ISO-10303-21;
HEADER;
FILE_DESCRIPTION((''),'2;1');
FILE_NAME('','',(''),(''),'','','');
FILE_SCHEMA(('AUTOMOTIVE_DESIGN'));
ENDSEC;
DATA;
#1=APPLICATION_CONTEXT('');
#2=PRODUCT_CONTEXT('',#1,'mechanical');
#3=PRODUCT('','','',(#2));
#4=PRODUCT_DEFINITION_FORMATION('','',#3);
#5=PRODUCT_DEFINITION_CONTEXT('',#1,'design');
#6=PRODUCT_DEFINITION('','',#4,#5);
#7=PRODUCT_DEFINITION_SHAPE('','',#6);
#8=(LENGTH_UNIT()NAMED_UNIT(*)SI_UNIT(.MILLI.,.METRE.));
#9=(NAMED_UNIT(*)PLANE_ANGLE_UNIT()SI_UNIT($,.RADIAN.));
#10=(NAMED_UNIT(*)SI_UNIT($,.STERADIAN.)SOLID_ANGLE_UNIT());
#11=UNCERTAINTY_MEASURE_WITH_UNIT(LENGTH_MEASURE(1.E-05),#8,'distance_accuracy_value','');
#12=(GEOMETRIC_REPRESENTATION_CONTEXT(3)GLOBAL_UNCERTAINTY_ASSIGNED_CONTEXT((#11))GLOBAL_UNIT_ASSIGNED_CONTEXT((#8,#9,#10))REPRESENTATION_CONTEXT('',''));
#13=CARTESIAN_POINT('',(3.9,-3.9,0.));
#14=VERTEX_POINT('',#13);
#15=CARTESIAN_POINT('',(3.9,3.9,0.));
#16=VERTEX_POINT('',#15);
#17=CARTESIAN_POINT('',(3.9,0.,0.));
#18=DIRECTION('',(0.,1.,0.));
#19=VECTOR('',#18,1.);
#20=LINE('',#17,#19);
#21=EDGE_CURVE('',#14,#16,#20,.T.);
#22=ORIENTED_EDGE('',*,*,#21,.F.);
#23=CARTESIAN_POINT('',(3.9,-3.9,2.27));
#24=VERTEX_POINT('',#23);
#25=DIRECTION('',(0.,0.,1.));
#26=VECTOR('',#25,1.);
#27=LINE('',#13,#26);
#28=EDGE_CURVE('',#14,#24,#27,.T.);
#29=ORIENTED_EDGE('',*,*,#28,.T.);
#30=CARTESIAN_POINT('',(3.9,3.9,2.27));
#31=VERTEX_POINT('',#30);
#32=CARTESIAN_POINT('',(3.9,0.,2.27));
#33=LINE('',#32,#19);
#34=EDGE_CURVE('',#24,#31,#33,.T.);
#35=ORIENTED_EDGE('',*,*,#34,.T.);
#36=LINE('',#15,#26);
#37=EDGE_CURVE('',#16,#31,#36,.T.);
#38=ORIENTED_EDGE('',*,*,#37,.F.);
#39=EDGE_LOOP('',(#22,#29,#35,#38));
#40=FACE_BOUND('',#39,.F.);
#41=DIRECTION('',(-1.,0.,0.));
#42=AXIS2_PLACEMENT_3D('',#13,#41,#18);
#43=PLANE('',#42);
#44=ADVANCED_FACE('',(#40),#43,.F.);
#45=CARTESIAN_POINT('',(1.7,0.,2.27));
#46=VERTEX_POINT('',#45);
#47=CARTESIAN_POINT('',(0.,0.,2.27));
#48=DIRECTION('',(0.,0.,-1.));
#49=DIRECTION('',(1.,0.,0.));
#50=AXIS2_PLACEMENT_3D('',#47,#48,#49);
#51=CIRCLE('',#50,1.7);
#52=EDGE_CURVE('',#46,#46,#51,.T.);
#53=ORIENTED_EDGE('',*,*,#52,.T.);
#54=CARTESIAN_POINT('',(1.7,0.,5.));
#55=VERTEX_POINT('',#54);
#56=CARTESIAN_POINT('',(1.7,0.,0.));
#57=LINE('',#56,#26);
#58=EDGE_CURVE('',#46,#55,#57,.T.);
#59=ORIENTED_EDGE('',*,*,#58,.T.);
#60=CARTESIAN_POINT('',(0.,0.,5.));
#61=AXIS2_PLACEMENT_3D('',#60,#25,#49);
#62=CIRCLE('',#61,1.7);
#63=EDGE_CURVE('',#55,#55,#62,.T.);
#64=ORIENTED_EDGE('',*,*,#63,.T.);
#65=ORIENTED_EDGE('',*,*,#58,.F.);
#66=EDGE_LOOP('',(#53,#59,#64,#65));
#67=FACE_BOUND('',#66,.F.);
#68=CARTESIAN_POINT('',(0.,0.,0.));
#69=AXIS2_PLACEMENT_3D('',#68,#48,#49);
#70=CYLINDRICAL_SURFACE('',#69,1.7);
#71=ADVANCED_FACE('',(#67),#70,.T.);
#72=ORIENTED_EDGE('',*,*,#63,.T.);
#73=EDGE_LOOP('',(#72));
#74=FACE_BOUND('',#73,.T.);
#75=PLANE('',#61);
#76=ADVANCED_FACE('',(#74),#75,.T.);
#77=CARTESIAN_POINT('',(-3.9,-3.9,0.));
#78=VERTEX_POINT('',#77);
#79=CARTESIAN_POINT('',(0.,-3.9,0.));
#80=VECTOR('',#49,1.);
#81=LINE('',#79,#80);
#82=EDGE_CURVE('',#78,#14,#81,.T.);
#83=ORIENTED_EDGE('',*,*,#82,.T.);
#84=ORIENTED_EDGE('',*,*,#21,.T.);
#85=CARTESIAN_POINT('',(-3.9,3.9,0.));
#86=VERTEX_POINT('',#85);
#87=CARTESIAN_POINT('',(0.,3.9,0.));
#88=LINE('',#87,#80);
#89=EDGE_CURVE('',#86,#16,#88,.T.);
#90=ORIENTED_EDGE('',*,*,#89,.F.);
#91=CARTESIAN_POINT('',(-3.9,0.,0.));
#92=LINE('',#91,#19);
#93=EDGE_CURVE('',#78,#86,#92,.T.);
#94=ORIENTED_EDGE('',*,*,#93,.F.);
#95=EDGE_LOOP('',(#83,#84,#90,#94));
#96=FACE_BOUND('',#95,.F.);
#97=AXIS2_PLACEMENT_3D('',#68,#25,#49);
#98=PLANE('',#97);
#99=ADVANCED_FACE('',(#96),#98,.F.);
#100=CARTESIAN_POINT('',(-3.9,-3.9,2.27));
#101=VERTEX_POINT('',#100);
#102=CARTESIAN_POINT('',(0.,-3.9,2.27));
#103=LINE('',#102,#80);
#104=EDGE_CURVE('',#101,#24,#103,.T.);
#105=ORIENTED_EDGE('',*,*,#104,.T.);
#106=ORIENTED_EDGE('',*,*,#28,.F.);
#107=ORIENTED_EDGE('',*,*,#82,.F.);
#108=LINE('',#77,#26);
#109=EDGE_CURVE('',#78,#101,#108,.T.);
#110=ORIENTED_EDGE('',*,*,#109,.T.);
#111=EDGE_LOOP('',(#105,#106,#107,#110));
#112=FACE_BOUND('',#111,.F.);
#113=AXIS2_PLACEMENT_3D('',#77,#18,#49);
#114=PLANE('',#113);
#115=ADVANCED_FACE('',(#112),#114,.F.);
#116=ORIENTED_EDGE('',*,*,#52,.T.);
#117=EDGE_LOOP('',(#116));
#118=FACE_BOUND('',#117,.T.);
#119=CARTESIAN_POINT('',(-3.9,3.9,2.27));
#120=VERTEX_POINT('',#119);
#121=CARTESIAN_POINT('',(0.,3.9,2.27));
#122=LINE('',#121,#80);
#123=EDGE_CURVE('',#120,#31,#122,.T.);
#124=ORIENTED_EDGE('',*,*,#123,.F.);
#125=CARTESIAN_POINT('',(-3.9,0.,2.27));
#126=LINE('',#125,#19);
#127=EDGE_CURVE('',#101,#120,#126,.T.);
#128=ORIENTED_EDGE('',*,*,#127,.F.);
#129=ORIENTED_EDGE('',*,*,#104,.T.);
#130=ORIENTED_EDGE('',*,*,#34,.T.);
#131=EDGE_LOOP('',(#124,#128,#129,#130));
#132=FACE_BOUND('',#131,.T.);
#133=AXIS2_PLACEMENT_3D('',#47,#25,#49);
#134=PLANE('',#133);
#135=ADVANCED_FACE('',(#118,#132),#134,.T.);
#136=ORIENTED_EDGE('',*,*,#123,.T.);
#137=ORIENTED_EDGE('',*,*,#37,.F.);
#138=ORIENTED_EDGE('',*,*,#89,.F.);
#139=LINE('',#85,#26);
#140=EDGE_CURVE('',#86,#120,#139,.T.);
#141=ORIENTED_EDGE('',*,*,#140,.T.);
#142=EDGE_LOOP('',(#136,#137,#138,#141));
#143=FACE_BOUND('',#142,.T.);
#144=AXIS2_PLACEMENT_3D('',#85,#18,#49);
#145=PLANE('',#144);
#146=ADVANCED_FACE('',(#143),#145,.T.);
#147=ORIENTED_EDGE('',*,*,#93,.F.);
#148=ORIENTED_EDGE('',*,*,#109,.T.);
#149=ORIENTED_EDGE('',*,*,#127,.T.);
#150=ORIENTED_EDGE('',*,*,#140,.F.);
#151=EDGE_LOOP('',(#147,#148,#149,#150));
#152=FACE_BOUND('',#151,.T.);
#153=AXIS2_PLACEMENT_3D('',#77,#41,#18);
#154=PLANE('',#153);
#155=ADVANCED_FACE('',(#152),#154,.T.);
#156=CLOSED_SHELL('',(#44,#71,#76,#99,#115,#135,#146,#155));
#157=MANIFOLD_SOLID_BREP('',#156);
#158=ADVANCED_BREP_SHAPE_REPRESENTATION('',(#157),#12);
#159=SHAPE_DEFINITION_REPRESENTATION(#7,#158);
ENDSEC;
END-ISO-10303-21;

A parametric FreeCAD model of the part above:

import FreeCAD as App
import Part
import Sketcher
from FreeCAD import Vector
Q = App.Units.Quantity


def add_polygon(sketch, points):
    """Adds a closed chain of lines whose ends are joined by coincident constraints."""
    first, n = sketch.GeometryCount, len(points)
    for a, b in zip(points, points[1:] + points[:1]):
        sketch.addGeometry(Part.LineSegment(App.Vector(*a, 0), App.Vector(*b, 0)), False)
    for i in range(n):
        sketch.addConstraint(Sketcher.Constraint("Coincident", first + i, 2, first + (i + 1) % n, 1))

doc = App.newDocument("Part")
body = doc.addObject("PartDesign::Body", "Body")

# Sketch on XY plane
sketch1 = body.newObject("Sketcher::SketchObject", "Sketch")
sketch1.AttachmentSupport = (doc.getObject("XY_Plane"), [""])
sketch1.MapMode = "FlatFace"
add_polygon(sketch1, [(-3.9, 3.9), (-3.9, -3.9), (3.9, -3.9), (3.9, 3.9)])  # lines 0-3
sketch1.addConstraint([
    Sketcher.Constraint("Vertical", 0),
    Sketcher.Constraint("Horizontal", 1),
    Sketcher.Constraint("Vertical", 2),
    Sketcher.Constraint("Horizontal", 3),
    Sketcher.Constraint("Symmetric", 0, 2, 2, 2, -1, 1),
    Sketcher.Constraint("Equal", 3, 0),
    Sketcher.Constraint("DistanceX", 1, 1, 1, 2, Q("7.8 mm")),
])
pad1 = body.newObject("PartDesign::Pad", "Pad")
pad1.Profile = sketch1
pad1.Length = 2.27

# Sketch on XY plane
sketch2 = body.newObject("Sketcher::SketchObject", "Sketch001")
sketch2.AttachmentSupport = (doc.getObject("XY_Plane"), [""])
sketch2.MapMode = "FlatFace"
sketch2.addGeometry(Part.Circle(Vector(0, 0, 0), Vector(0, 0, 1), 1.7), False)
sketch2.addConstraint([
    Sketcher.Constraint("Coincident", 0, 3, -1, 1),
    Sketcher.Constraint("Diameter", 0, Q("3.4 mm")),
])
pad2 = body.newObject("PartDesign::Pad", "Pad001")
pad2.Profile = sketch2
pad2.Length = 5

doc.recompute()
